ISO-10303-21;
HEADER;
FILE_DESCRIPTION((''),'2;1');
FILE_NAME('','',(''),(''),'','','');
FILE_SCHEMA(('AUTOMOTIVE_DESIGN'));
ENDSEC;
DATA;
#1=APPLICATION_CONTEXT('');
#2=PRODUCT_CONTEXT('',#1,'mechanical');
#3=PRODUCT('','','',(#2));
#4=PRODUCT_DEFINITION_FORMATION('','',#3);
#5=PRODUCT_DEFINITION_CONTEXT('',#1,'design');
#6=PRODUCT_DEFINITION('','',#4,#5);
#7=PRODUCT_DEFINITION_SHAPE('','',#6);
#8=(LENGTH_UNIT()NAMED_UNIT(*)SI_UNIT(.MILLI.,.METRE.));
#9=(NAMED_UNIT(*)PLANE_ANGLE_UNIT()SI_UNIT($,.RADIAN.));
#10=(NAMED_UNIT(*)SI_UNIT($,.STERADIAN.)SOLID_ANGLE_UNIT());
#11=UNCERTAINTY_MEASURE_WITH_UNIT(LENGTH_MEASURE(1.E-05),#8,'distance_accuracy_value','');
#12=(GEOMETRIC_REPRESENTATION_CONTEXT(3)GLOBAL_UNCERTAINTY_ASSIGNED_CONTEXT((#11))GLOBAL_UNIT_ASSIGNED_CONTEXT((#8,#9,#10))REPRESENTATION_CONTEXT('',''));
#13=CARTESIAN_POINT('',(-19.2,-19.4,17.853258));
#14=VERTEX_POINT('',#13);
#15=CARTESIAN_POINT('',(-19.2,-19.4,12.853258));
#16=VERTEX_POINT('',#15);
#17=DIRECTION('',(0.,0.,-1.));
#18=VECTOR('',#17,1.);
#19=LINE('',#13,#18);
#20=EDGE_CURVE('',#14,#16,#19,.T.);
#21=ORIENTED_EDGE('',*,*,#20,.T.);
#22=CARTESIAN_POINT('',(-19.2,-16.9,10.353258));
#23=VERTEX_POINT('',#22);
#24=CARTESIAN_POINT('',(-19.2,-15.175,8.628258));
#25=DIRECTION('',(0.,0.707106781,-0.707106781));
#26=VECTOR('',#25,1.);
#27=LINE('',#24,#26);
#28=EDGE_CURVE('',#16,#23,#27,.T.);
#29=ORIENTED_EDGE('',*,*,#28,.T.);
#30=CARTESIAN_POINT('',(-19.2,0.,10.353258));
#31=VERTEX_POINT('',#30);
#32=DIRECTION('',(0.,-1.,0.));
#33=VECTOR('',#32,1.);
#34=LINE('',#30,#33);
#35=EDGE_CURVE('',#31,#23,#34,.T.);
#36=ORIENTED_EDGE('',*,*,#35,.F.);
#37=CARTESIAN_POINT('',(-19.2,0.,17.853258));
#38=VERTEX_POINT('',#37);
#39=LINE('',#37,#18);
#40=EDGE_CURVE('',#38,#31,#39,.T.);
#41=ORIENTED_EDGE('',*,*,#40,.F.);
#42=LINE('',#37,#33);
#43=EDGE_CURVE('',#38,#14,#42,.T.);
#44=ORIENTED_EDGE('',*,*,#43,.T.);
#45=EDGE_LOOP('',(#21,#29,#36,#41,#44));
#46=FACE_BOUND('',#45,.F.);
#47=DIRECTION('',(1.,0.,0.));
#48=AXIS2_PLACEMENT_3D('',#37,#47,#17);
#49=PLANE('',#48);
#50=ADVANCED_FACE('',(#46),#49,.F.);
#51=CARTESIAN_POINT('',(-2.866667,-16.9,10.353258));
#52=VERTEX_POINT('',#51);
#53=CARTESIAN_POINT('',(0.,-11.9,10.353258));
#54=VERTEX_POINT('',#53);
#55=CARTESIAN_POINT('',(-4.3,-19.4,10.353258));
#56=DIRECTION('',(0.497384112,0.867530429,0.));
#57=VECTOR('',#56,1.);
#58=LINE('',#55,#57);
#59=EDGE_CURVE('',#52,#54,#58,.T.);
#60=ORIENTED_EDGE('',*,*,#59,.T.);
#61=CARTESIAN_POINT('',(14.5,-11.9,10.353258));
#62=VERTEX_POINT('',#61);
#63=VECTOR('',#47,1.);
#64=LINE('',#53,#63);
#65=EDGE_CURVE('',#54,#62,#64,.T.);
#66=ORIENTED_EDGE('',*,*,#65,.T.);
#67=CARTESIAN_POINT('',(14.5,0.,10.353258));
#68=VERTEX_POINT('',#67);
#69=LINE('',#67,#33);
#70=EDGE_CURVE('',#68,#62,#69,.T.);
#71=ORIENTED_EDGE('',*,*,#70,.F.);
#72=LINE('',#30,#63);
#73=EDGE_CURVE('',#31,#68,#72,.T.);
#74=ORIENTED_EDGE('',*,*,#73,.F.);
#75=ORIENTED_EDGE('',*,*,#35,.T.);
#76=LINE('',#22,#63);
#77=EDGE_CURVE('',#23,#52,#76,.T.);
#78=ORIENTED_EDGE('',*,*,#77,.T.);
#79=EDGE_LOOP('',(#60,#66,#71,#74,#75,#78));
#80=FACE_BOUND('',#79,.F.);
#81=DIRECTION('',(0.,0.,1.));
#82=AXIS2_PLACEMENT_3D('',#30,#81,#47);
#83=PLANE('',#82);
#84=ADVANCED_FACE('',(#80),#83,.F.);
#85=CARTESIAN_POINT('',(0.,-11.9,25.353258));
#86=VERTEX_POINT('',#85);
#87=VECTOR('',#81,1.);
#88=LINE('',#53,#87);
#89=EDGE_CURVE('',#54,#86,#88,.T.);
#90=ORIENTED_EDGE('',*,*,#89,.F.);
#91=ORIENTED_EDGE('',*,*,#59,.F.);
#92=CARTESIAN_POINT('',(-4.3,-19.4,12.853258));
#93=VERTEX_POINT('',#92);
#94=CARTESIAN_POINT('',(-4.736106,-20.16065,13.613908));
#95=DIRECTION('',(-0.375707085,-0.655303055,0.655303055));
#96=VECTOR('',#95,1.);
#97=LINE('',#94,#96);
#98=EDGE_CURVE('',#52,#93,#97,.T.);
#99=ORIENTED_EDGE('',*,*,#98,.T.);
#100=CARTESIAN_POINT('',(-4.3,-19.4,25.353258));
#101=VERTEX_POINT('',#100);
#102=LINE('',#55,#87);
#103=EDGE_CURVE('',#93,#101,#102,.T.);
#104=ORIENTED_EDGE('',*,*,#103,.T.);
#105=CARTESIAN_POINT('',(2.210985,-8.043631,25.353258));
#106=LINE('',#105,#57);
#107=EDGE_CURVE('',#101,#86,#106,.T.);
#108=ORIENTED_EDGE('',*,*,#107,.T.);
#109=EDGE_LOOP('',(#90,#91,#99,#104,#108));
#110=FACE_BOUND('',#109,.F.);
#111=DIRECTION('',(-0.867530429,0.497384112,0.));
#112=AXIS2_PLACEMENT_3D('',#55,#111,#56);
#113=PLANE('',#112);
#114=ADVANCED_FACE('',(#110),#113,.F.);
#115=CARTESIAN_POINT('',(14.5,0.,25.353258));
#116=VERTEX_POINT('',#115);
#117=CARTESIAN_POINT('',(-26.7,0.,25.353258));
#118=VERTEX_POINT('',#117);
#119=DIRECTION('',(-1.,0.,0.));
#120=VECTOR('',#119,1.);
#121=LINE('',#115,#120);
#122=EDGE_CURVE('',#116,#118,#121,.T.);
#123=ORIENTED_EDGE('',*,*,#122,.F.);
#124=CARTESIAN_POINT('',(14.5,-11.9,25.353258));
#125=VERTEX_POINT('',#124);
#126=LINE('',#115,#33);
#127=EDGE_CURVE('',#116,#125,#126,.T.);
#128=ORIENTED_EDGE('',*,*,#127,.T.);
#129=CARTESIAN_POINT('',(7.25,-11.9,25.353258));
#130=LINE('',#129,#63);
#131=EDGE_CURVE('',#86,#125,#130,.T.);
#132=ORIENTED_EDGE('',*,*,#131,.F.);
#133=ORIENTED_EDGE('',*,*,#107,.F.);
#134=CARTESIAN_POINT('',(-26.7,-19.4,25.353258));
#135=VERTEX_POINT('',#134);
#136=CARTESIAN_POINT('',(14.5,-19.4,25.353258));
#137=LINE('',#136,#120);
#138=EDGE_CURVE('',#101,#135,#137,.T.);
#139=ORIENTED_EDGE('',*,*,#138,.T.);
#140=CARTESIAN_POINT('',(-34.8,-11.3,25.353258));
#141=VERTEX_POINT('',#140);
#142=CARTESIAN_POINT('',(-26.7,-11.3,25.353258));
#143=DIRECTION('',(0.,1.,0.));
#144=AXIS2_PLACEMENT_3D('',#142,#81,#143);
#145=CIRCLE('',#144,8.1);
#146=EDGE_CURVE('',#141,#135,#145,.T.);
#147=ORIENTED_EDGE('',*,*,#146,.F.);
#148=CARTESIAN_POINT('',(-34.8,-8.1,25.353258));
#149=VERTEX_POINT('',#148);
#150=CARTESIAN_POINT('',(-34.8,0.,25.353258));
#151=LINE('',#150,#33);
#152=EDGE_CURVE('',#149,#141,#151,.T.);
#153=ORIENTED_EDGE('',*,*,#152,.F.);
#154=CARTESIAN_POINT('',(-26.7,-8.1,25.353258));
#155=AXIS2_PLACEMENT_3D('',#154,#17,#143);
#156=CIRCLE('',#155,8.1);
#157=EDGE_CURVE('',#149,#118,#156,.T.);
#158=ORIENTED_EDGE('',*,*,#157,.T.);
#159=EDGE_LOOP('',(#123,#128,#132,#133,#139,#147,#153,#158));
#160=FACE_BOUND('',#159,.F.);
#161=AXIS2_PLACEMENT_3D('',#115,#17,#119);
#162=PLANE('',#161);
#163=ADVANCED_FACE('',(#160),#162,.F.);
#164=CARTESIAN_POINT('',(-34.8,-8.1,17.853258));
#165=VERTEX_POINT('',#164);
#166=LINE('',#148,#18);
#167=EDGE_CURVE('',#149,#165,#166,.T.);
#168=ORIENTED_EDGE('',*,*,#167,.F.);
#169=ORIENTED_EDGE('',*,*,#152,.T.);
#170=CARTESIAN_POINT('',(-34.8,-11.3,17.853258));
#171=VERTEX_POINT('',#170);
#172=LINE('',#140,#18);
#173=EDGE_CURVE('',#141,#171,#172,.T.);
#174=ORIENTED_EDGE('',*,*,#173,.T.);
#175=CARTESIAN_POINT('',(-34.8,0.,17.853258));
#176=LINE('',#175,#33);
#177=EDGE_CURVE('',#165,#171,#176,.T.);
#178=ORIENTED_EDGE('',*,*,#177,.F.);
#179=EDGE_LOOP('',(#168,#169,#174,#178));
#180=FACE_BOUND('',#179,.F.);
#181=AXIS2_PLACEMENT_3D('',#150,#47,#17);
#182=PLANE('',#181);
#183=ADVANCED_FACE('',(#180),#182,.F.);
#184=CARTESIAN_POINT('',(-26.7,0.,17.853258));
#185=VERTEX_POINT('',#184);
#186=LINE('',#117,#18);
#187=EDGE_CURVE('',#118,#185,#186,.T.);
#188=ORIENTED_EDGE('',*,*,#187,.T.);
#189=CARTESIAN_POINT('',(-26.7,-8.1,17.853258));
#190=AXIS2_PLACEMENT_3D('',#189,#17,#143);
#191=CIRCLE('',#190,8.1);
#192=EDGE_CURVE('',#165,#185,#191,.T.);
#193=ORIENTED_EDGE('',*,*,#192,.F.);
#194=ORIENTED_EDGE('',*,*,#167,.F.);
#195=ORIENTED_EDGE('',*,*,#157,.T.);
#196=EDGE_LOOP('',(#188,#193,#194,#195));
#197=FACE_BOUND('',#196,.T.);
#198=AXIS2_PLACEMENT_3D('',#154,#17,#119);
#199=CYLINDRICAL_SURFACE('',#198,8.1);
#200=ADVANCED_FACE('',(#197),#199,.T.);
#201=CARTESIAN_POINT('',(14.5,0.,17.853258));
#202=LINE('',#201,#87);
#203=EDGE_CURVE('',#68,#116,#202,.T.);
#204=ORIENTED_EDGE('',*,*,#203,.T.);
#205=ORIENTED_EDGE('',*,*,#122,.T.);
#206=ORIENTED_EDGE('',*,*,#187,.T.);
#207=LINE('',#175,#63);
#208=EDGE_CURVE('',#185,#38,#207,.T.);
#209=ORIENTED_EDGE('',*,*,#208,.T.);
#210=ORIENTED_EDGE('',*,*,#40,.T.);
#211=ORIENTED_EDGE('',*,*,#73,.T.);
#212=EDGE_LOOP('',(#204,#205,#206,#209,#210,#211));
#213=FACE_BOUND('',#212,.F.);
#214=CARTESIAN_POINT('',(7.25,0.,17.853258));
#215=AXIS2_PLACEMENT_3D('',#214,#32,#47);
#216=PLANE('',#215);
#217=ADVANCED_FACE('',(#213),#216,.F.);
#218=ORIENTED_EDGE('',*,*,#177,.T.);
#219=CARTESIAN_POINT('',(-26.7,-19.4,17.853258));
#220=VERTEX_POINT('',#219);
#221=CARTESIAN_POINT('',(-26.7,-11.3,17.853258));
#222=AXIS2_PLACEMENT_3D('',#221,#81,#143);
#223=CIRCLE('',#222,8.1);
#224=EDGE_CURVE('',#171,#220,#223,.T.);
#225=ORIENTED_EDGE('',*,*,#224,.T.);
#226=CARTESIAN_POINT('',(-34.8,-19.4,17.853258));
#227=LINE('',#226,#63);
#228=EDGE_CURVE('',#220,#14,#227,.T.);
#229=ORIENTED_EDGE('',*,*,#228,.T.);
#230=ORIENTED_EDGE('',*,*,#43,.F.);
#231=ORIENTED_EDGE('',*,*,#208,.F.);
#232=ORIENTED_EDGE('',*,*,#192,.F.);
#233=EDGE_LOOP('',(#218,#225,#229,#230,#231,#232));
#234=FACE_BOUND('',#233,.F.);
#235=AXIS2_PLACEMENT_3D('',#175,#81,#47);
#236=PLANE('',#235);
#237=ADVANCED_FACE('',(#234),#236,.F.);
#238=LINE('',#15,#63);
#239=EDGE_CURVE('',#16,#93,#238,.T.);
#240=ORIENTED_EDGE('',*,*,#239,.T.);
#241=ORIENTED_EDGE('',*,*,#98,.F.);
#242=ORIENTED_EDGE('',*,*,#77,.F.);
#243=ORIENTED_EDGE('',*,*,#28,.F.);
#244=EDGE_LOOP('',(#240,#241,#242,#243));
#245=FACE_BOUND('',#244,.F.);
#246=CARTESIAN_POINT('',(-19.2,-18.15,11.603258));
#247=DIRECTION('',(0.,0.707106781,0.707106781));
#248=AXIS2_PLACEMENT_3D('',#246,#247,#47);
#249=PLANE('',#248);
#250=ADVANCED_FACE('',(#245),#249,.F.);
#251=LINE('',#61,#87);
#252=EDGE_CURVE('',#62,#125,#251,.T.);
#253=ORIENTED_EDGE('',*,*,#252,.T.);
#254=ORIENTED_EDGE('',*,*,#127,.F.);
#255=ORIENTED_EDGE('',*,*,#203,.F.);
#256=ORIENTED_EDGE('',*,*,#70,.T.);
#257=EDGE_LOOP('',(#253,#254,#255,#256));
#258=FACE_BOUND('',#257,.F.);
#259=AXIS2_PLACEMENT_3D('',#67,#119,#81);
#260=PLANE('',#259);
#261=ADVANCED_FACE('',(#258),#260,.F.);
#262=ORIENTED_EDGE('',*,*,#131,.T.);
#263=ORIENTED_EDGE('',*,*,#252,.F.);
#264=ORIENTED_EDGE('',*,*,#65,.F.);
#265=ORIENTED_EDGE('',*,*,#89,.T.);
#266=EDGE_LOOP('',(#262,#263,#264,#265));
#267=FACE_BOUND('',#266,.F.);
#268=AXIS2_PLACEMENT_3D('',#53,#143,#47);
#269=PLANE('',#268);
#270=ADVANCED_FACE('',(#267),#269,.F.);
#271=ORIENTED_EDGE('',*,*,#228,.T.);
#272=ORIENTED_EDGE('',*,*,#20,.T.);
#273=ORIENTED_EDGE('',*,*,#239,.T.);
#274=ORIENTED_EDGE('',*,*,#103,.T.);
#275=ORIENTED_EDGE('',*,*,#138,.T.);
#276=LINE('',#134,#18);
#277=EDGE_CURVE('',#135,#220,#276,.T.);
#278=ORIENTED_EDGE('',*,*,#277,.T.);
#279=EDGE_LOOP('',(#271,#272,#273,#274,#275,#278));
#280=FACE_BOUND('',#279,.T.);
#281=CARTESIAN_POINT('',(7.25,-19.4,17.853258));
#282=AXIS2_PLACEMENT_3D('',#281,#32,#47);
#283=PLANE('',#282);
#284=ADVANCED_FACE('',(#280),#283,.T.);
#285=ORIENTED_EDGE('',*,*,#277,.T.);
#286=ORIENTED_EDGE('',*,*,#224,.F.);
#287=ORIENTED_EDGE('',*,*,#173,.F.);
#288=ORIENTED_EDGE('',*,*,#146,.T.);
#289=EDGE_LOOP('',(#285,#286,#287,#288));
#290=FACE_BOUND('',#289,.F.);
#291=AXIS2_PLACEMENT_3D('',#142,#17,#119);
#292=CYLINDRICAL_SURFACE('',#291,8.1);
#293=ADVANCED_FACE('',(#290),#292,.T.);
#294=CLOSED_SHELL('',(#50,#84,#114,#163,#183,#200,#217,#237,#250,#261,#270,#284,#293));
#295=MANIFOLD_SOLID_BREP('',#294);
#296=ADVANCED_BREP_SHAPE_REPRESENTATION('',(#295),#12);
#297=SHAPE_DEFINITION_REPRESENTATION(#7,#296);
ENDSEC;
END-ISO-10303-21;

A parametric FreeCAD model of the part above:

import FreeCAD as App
import Part
import Sketcher
from FreeCAD import Vector


def edges_at(feature, points):
    """Names of the edges that pass closest to the given points."""
    edges = feature.Shape.Edges
    near = lambda p: min(range(len(edges)), key=lambda i: edges[i].distToShape(Part.Vertex(*p))[0])
    return sorted({f"Edge{near(p) + 1}" for p in points})

doc = App.newDocument("Part")
params = doc.addObject("Spreadsheet::Sheet", "Params")
for row, (alias, value) in enumerate([
    ("sketch1_height", "15 mm"),
    ("sketch1_width", "49.3 mm"),
    ("sketch1_width2", "15.6 mm"),
    ("pad1_length", "19.4 mm"),
    ("fillet_radius", "8.1 mm"),
    ("fillet2_radius", "8.1 mm"),
    ("chamfer_size", "2.5 mm"),
    ("sketch2_width", "14.5 mm"),
    ("sketch2_width2", "18.8 mm"),
    ("sketch2_height", "7.5 mm"),
], start=1):
    params.set(f"A{row}", alias)
    params.set(f"B{row}", "=" + value)
    params.setAlias(f"B{row}", alias)

body = doc.addObject("PartDesign::Body", "Body")

# Sketch on XZ plane
sketch1 = body.newObject("Sketcher::SketchObject", "Sketch")
sketch1.AttachmentSupport = (doc.getObject("XZ_Plane"), [""])
sketch1.MapMode = "FlatFace"
sketch1.addGeometry([
    Part.LineSegment(Vector(14, 10, 0), Vector(14, 25, 0)),  # 0
    Part.LineSegment(Vector(14, 25, 0), Vector(-35, 25, 0)),  # 1
    Part.LineSegment(Vector(-35, 25, 0), Vector(-35, 18, 0)),  # 2
    Part.LineSegment(Vector(-35, 18, 0), Vector(-19, 18, 0)),  # 3
    Part.LineSegment(Vector(-19, 18, 0), Vector(-19, 10, 0)),  # 4
    Part.LineSegment(Vector(-19, 10, 0), Vector(14, 10, 0)),  # 5
], False)
sketch1.addConstraint([
    Sketcher.Constraint("Coincident", 0, 2, 1, 1),
    Sketcher.Constraint("Coincident", 1, 2, 2, 1),
    Sketcher.Constraint("Coincident", 2, 2, 3, 1),
    Sketcher.Constraint("Coincident", 3, 2, 4, 1),
    Sketcher.Constraint("Coincident", 4, 2, 5, 1),
    Sketcher.Constraint("Coincident", 5, 2, 0, 1),
    Sketcher.Constraint("Vertical", 0),
    Sketcher.Constraint("Horizontal", 1),
    Sketcher.Constraint("Vertical", 2),
    Sketcher.Constraint("Horizontal", 3),
    Sketcher.Constraint("Vertical", 4),
    Sketcher.Constraint("Horizontal", 5),
    Sketcher.Constraint("Equal", 2, 4),
    Sketcher.Constraint("DistanceY", 0, 1, 0, 2, 15.0),
    Sketcher.Constraint("DistanceX", 1, 2, 1, 1, 49.3),
    Sketcher.Constraint("DistanceX", 3, 1, 3, 2, 15.6),
    Sketcher.Constraint("DistanceX", -1, 1, 0, 2, 14.5),
    Sketcher.Constraint("DistanceY", -1, 1, 0, 2, 25.353258),
])
sketch1.setExpression("Constraints[13]", "Params.sketch1_height")
sketch1.setExpression("Constraints[14]", "Params.sketch1_width")
sketch1.setExpression("Constraints[15]", "Params.sketch1_width2")
pad1 = body.newObject("PartDesign::Pad", "Pad")
pad1.Profile = sketch1
pad1.setExpression("Length", "Params.pad1_length")
doc.recompute()

fillet = body.newObject("PartDesign::Fillet", "Fillet")
fillet.Base = (pad1, edges_at(pad1, [(-34.8, 0, 21.603)]))
fillet.setExpression("Radius", "Params.fillet_radius")
doc.recompute()

fillet2 = body.newObject("PartDesign::Fillet", "Fillet001")
fillet2.Base = (fillet, edges_at(fillet, [(-34.8, -19.4, 21.603)]))
fillet2.setExpression("Radius", "Params.fillet2_radius")
doc.recompute()

chamfer = body.newObject("PartDesign::Chamfer", "Chamfer")
chamfer.Base = (fillet2, edges_at(fillet2, [(-2.35, -19.4, 10.353)]))
chamfer.setExpression("Size", "Params.chamfer_size")

# Sketch on XY plane
sketch2 = body.newObject("Sketcher::SketchObject", "Sketch001")
sketch2.AttachmentSupport = (doc.getObject("XY_Plane"), [""])
sketch2.MapMode = "FlatFace"
sketch2.AttachmentOffset = App.Placement(Vector(0, 0, 10.353258), App.Rotation())
sketch2.addGeometry([
    Part.LineSegment(Vector(0, -12, 0), Vector(14, -12, 0)),
    Part.LineSegment(Vector(14, -12, 0), Vector(14, -19, 0)),
    Part.LineSegment(Vector(14, -19, 0), Vector(-4, -19, 0)),
    Part.LineSegment(Vector(-4, -19, 0), Vector(0, -12, 0)),
], False)
sketch2.addConstraint([
    Sketcher.Constraint("Coincident", 0, 2, 1, 1),
    Sketcher.Constraint("Coincident", 1, 2, 2, 1),
    Sketcher.Constraint("Coincident", 2, 2, 3, 1),
    Sketcher.Constraint("Coincident", 3, 2, 0, 1),
    Sketcher.Constraint("Horizontal", 0),
    Sketcher.Constraint("Vertical", 1),
    Sketcher.Constraint("Horizontal", 2),
    Sketcher.Constraint("PointOnObject", 3, 2, -2),
    Sketcher.Constraint("DistanceX", 0, 1, 0, 2, 14.5),
    Sketcher.Constraint("DistanceX", 2, 2, 2, 1, 18.8),
    Sketcher.Constraint("DistanceY", 1, 2, 1, 1, 7.5),
    Sketcher.Constraint("DistanceY", 0, 2, -1, 1, 11.9),
])
sketch2.setExpression("Constraints[8]", "Params.sketch2_width")
sketch2.setExpression("Constraints[9]", "Params.sketch2_width2")
sketch2.setExpression("Constraints[10]", "Params.sketch2_height")
pocket1 = body.newObject("PartDesign::Pocket", "Pocket")
pocket1.Profile = sketch2
pocket1.Type = "ThroughAll"
pocket1.Reversed = True

doc.recompute()
